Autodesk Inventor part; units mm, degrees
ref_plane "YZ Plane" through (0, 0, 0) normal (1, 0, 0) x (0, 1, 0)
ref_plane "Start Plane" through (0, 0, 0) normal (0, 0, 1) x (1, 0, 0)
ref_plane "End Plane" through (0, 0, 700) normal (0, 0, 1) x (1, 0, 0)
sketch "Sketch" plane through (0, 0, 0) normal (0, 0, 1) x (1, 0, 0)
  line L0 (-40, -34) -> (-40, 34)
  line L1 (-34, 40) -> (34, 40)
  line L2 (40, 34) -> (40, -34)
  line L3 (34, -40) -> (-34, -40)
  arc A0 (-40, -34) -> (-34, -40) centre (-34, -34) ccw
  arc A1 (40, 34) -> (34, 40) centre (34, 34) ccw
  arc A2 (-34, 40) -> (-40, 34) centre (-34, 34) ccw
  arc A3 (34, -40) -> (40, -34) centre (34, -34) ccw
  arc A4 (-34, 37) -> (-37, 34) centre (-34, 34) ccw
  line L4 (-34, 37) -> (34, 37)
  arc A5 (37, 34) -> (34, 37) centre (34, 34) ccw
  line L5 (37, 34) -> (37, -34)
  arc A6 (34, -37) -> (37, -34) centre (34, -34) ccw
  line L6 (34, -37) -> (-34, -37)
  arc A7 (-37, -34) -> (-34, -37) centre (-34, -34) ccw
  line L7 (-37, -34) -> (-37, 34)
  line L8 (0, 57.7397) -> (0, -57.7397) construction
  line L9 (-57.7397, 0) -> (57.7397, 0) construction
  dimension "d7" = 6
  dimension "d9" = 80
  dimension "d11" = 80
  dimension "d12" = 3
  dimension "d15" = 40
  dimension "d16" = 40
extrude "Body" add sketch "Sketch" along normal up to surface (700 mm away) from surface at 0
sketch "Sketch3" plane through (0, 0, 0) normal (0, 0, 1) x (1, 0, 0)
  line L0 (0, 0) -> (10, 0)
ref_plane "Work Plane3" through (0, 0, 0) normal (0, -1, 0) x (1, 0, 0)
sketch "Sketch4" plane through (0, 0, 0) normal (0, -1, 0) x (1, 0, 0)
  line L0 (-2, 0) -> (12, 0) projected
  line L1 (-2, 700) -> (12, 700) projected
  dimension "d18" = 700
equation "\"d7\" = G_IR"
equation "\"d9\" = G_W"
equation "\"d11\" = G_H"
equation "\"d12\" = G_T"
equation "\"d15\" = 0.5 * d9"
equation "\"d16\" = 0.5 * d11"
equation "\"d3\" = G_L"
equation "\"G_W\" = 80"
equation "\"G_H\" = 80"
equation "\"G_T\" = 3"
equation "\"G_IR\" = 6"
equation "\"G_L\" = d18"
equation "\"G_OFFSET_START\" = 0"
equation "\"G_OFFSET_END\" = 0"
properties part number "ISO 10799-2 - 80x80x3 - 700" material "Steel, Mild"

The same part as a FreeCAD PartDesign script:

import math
import FreeCAD as App
import Part
import Sketcher
Q = App.Units.Quantity

doc = App.newDocument("Part")
body = doc.addObject("PartDesign::Body", "Body")

sketch1 = body.newObject("Sketcher::SketchObject", "Sketch")
sketch1.AttachmentSupport = (doc.getObject("XY_Plane"), [""])
sketch1.MapMode = "FlatFace"
sketch1.addGeometry([
    Part.LineSegment(App.Vector(-40, 34, 0), App.Vector(-40, -34, 0)),
    Part.ArcOfCircle(Part.Circle(App.Vector(-34, -34, 0), App.Vector(0, 0, 1), 6), math.radians(180), math.radians(270)),
    Part.LineSegment(App.Vector(-34, -40, 0), App.Vector(34, -40, 0)),
    Part.ArcOfCircle(Part.Circle(App.Vector(34, -34, 0), App.Vector(0, 0, 1), 6), math.radians(-90), math.radians(0)),
    Part.LineSegment(App.Vector(40, -34, 0), App.Vector(40, 34, 0)),
    Part.ArcOfCircle(Part.Circle(App.Vector(34, 34, 0), App.Vector(0, 0, 1), 6), math.radians(0), math.radians(90)),
    Part.LineSegment(App.Vector(34, 40, 0), App.Vector(-34, 40, 0)),
    Part.ArcOfCircle(Part.Circle(App.Vector(-34, 34, 0), App.Vector(0, 0, 1), 6), math.radians(90), math.radians(180)),
    Part.ArcOfCircle(Part.Circle(App.Vector(-34, 34, 0), App.Vector(0, 0, 1), 3), math.radians(90), math.radians(180)),
    Part.LineSegment(App.Vector(-34, 37, 0), App.Vector(34, 37, 0)),
    Part.ArcOfCircle(Part.Circle(App.Vector(34, 34, 0), App.Vector(0, 0, 1), 3), math.radians(0), math.radians(90)),
    Part.LineSegment(App.Vector(37, 34, 0), App.Vector(37, -34, 0)),
    Part.ArcOfCircle(Part.Circle(App.Vector(34, -34, 0), App.Vector(0, 0, 1), 3), math.radians(-90), math.radians(0)),
    Part.LineSegment(App.Vector(34, -37, 0), App.Vector(-34, -37, 0)),
    Part.ArcOfCircle(Part.Circle(App.Vector(-34, -34, 0), App.Vector(0, 0, 1), 3), math.radians(180), math.radians(270)),
    Part.LineSegment(App.Vector(-37, -34, 0), App.Vector(-37, 34, 0)),
], False)
sketch1.addConstraint([
    Sketcher.Constraint("Tangent", 0, 2, 1, 1),
    Sketcher.Constraint("Tangent", 1, 2, 2, 1),
    Sketcher.Constraint("Tangent", 2, 2, 3, 1),
    Sketcher.Constraint("Tangent", 3, 2, 4, 1),
    Sketcher.Constraint("Tangent", 4, 2, 5, 1),
    Sketcher.Constraint("Tangent", 5, 2, 6, 1),
    Sketcher.Constraint("Tangent", 6, 2, 7, 1),
    Sketcher.Constraint("Tangent", 7, 2, 0, 1),
    Sketcher.Constraint("Tangent", 8, 1, 9, 1),
    Sketcher.Constraint("Tangent", 9, 2, 10, 2),
    Sketcher.Constraint("Tangent", 10, 1, 11, 1),
    Sketcher.Constraint("Tangent", 11, 2, 12, 2),
    Sketcher.Constraint("Tangent", 12, 1, 13, 1),
    Sketcher.Constraint("Tangent", 13, 2, 14, 2),
    Sketcher.Constraint("Tangent", 14, 1, 15, 1),
    Sketcher.Constraint("Tangent", 15, 2, 8, 2),
    Sketcher.Constraint("Vertical", 0),
    Sketcher.Constraint("Horizontal", 2),
    Sketcher.Constraint("Vertical", 4),
    Sketcher.Constraint("Horizontal", 6),
    Sketcher.Constraint("Horizontal", 9),
    Sketcher.Constraint("Vertical", 11),
    Sketcher.Constraint("Horizontal", 13),
    Sketcher.Constraint("Vertical", 15),
    Sketcher.Constraint("Coincident", 8, 3, 7, 3),
    Sketcher.Constraint("Coincident", 10, 3, 5, 3),
    Sketcher.Constraint("Coincident", 12, 3, 3, 3),
    Sketcher.Constraint("Equal", 1, 3),
    Sketcher.Constraint("Equal", 3, 5),
    Sketcher.Constraint("Equal", 5, 7),
    Sketcher.Constraint("Equal", 12, 14),
    Sketcher.Constraint("Symmetric", 1, 3, 5, 3, -1, 1),
    Sketcher.Constraint("Equal", 13, 0),
    Sketcher.Constraint("Radius", 1, Q("6 mm")),
    Sketcher.Constraint("Radius", 8, Q("3 mm")),
    Sketcher.Constraint("DistanceX", 0, 2, -1, 1, Q("40 mm")),
])
pad1 = body.newObject("PartDesign::Pad", "Pad")
pad1.Profile = sketch1
pad1.Length = 700

doc.recompute()
